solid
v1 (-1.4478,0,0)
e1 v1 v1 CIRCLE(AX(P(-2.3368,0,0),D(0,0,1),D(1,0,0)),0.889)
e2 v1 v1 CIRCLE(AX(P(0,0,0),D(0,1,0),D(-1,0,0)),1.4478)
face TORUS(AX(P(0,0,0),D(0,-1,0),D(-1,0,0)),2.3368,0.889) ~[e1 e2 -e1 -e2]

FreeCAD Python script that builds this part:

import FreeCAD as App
import Part
import Sketcher
Q = App.Units.Quantity

doc = App.newDocument("Part")
body = doc.addObject("PartDesign::Body", "Body")

# Sketch on XY plane
sketch1 = body.newObject("Sketcher::SketchObject", "Sketch")
sketch1.AttachmentSupport = (doc.getObject("XY_Plane"), [""])
sketch1.MapMode = "FlatFace"
sketch1.addGeometry(Part.Circle(App.Vector(-2.3368, 0, 0), App.Vector(0, 0, 1), 0.889), False)
sketch1.addConstraint([
    Sketcher.Constraint("PointOnObject", 0, 3, -1),
    Sketcher.Constraint("Diameter", 0, Q("0.07 in")),
    Sketcher.Constraint("DistanceX", 0, 3, -1, 1, Q("0.092 in")),
])
revolution = body.newObject("PartDesign::Revolution", "Revolution")
revolution.Profile = sketch1
revolution.ReferenceAxis = (sketch1, ["V_Axis"])
revolution.Angle = 360

doc.recompute()
